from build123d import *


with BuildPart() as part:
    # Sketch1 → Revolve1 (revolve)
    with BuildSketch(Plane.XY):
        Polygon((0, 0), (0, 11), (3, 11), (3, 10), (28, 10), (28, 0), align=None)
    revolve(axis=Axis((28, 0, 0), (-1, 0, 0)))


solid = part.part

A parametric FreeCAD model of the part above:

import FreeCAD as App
import Part
import Sketcher

V = App.Vector

doc = App.newDocument("Part")
body = doc.addObject("PartDesign::Body", "Body")

# Sketch on XY plane
sketch1 = body.newObject("Sketcher::SketchObject", "Sketch")
sketch1.AttachmentSupport = (doc.getObject("XY_Plane"), [""])
sketch1.MapMode = "FlatFace"
sketch1.addGeometry(Part.LineSegment(V(0, 11, 0), V(0, 0, 0)), False)
sketch1.addGeometry(Part.LineSegment(V(0, 0, 0), V(28, 0, 0)), False)
sketch1.addGeometry(Part.LineSegment(V(28, 0, 0), V(28, 10, 0)), False)
sketch1.addGeometry(Part.LineSegment(V(28, 10, 0), V(3, 10, 0)), False)
sketch1.addGeometry(Part.LineSegment(V(3, 10, 0), V(3, 11, 0)), False)
sketch1.addGeometry(Part.LineSegment(V(3, 11, 0), V(0, 11, 0)), False)
sketch1.addConstraint(Sketcher.Constraint("Coincident", 0, 2, 1, 1))
sketch1.addConstraint(Sketcher.Constraint("Coincident", 1, 2, 2, 1))
sketch1.addConstraint(Sketcher.Constraint("Coincident", 2, 2, 3, 1))
sketch1.addConstraint(Sketcher.Constraint("Coincident", 3, 2, 4, 1))
sketch1.addConstraint(Sketcher.Constraint("Coincident", 4, 2, 5, 1))
sketch1.addConstraint(Sketcher.Constraint("Coincident", 5, 2, 0, 1))
sketch1.addConstraint(Sketcher.Constraint("Vertical", 0))
sketch1.addConstraint(Sketcher.Constraint("Horizontal", 1))
sketch1.addConstraint(Sketcher.Constraint("Vertical", 2))
sketch1.addConstraint(Sketcher.Constraint("Horizontal", 3))
sketch1.addConstraint(Sketcher.Constraint("Vertical", 4))
sketch1.addConstraint(Sketcher.Constraint("Horizontal", 5))
sketch1.addConstraint(Sketcher.Constraint("Coincident", 0, 2, -1, 1))
sketch1.addConstraint(Sketcher.Constraint("DistanceX", 1, 1, 1, 2, 28.0))
sketch1.addConstraint(Sketcher.Constraint("DistanceX", 3, 2, 3, 1, 25.0))
sketch1.addConstraint(Sketcher.Constraint("DistanceY", 0, 2, 0, 1, 11.0))
sketch1.addConstraint(Sketcher.Constraint("DistanceY", 2, 1, 2, 2, 10.0))
revolution = body.newObject("PartDesign::Revolution", "Revolution")
revolution.Profile = sketch1
revolution.ReferenceAxis = (sketch1, ["H_Axis"])
revolution.Angle = 360

doc.recompute()
